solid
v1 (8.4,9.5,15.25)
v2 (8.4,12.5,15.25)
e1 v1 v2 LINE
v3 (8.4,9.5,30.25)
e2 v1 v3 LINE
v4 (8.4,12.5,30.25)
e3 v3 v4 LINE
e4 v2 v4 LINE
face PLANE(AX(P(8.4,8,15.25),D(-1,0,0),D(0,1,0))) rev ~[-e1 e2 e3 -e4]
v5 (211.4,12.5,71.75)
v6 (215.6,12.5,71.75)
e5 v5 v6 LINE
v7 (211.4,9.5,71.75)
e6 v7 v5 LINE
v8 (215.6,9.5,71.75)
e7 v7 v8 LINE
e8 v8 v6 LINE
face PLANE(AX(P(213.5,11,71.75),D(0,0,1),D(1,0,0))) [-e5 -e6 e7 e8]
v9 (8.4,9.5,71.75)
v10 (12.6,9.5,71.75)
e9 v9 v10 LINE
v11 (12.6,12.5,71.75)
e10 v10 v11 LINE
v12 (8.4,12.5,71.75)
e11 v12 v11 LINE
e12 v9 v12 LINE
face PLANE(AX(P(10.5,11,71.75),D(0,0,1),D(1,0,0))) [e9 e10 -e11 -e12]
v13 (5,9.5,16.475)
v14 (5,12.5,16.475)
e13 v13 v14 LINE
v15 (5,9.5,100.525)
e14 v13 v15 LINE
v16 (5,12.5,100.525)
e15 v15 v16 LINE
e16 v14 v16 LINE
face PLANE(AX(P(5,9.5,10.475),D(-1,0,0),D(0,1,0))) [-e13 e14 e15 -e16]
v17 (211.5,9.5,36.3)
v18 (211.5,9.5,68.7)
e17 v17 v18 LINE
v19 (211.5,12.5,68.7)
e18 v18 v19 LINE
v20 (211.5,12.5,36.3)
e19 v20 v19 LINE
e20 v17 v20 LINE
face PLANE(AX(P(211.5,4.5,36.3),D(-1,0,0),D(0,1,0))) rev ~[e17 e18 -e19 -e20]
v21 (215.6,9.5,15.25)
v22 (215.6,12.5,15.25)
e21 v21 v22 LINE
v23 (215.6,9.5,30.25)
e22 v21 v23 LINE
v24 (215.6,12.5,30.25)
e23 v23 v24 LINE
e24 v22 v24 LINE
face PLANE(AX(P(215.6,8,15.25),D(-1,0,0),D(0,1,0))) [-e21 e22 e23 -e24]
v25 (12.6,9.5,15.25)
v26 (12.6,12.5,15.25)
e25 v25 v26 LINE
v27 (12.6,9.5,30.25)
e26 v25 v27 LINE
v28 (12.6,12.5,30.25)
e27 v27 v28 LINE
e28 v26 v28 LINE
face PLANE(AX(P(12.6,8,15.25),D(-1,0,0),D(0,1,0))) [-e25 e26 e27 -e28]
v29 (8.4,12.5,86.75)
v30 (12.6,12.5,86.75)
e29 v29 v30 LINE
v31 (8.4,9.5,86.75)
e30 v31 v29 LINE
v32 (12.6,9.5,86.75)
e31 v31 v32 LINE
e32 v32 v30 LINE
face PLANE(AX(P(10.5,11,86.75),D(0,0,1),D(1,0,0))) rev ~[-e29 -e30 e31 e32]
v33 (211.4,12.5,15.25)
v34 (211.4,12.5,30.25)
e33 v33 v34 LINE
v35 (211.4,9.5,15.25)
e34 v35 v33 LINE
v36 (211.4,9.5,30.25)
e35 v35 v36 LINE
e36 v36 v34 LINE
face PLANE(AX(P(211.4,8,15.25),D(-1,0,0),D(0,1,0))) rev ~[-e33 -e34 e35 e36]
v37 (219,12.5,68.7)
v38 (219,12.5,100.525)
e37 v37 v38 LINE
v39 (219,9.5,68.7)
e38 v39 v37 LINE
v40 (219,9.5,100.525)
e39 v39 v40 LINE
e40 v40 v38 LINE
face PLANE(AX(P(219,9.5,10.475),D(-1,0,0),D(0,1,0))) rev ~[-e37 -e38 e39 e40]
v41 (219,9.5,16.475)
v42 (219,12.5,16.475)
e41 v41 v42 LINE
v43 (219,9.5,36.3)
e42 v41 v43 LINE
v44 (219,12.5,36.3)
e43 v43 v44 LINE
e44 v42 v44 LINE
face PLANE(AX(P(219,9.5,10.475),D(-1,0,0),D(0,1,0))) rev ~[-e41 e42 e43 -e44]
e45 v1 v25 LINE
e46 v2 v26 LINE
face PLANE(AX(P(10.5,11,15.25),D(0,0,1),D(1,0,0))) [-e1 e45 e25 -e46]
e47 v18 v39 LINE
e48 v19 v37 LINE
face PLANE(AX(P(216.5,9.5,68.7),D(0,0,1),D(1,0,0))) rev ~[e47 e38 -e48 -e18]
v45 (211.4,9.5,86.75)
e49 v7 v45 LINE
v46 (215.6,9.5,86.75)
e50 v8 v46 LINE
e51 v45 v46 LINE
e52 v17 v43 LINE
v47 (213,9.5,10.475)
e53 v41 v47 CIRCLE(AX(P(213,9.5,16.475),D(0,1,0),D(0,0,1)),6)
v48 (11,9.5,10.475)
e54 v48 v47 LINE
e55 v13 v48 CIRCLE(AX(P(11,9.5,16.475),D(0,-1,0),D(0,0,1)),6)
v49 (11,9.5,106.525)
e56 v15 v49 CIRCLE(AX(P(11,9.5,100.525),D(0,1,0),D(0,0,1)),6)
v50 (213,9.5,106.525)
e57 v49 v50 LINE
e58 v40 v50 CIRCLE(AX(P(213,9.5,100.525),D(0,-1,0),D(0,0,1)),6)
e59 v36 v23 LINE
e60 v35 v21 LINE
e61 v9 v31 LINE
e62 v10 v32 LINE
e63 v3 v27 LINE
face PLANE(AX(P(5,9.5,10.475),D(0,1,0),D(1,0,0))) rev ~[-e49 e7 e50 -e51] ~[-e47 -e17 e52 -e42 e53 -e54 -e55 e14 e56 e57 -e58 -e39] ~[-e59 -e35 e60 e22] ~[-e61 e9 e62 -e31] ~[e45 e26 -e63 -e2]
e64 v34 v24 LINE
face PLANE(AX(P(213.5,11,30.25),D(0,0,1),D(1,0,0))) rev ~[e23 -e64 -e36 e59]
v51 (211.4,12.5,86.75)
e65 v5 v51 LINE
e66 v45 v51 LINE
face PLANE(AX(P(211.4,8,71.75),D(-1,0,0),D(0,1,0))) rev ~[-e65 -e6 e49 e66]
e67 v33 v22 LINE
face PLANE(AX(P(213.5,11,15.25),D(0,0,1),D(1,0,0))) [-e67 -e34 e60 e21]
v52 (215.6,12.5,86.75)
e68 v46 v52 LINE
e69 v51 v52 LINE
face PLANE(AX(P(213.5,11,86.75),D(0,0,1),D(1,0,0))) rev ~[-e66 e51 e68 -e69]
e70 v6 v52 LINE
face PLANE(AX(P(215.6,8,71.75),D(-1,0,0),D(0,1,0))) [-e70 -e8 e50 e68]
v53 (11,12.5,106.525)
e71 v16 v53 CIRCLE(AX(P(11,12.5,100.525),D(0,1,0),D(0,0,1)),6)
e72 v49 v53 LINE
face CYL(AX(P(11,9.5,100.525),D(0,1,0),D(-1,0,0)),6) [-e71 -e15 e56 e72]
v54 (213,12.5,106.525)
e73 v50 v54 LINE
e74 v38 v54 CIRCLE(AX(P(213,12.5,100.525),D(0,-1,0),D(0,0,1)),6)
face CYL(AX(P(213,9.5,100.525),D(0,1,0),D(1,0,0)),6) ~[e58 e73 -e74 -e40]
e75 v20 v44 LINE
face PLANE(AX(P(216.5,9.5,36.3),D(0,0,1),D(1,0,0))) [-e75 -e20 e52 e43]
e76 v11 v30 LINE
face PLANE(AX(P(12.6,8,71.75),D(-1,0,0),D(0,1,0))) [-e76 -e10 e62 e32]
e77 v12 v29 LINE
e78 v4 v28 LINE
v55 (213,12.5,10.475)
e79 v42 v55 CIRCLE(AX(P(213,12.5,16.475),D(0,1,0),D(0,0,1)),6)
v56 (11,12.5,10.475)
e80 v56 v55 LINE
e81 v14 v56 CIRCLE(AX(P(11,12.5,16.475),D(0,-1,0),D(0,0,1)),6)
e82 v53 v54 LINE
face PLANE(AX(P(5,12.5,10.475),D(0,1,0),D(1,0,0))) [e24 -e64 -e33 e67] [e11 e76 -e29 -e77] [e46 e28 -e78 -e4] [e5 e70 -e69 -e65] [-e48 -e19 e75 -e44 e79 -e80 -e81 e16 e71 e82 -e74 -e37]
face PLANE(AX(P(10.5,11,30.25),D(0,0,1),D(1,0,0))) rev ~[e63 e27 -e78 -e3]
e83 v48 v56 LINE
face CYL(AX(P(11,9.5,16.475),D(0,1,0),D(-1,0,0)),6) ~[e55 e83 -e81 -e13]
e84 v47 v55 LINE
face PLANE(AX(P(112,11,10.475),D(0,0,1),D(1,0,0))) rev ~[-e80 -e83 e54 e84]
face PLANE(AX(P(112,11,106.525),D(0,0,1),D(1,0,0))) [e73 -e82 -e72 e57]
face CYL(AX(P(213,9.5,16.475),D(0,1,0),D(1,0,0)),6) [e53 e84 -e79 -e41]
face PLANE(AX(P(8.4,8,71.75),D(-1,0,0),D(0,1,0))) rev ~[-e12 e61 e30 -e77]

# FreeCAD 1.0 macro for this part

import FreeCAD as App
import Part
import Sketcher


def edges_at(feature, points):
    """Names of the edges that pass closest to the given points."""
    edges = feature.Shape.Edges
    near = lambda p: min(range(len(edges)), key=lambda i: edges[i].distToShape(Part.Vertex(*p))[0])
    return sorted({f"Edge{near(p) + 1}" for p in points})


def add_polygon(sketch, points):
    """Adds a closed chain of lines whose ends are joined by coincident constraints."""
    first, n = sketch.GeometryCount, len(points)
    for a, b in zip(points, points[1:] + points[:1]):
        sketch.addGeometry(Part.LineSegment(App.Vector(*a, 0), App.Vector(*b, 0)), False)
    for i in range(n):
        sketch.addConstraint(Sketcher.Constraint("Coincident", first + i, 2, first + (i + 1) % n, 1))

doc = App.newDocument("Part")
body = doc.addObject("PartDesign::Body", "Body")

sketch1 = body.newObject("Sketcher::SketchObject", "Sketch")
sketch1.AttachmentSupport = (doc.getObject("XY_Plane"), [""])
sketch1.MapMode = "FlatFace"
sketch1.AttachmentOffset = App.Placement(App.Vector(0, 0, 15.25), App.Rotation())
add_polygon(sketch1, [(211.4, 14), (211.4, 8), (215.6, 8), (215.6, 14)])
sketch1.addConstraint(Sketcher.Constraint("Vertical", 0))
sketch1.addConstraint(Sketcher.Constraint("Horizontal", 1))
sketch1.addConstraint(Sketcher.Constraint("Vertical", 2))
sketch1.addConstraint(Sketcher.Constraint("Horizontal", 3))
sketch1.addConstraint(Sketcher.Constraint("DistanceY", 0, 2, 0, 1, 6.0))
sketch1.addConstraint(Sketcher.Constraint("DistanceX", 1, 1, 1, 2, 4.2))
sketch1.addConstraint(Sketcher.Constraint("DistanceY", -1, 1, 0, 2, 8.0))
sketch1.addConstraint(Sketcher.Constraint("DistanceX", -1, 1, 0, 2, 211.4))
pad1 = body.newObject("PartDesign::Pad", "Pad")
pad1.Profile = sketch1
pad1.Length = 15
body2 = doc.addObject("PartDesign::Body", "Body001")

sketch2 = body2.newObject("Sketcher::SketchObject", "Sketch001")
sketch2.AttachmentSupport = (doc.getObject("XY_Plane001"), [""])
sketch2.MapMode = "FlatFace"
sketch2.AttachmentOffset = App.Placement(App.Vector(0, 0, 15.25), App.Rotation())
add_polygon(sketch2, [(8.4, 14), (8.4, 8), (12.6, 8), (12.6, 14)])
sketch2.addConstraint(Sketcher.Constraint("Vertical", 0))
sketch2.addConstraint(Sketcher.Constraint("Horizontal", 1))
sketch2.addConstraint(Sketcher.Constraint("Vertical", 2))
sketch2.addConstraint(Sketcher.Constraint("Horizontal", 3))
sketch2.addConstraint(Sketcher.Constraint("DistanceY", 0, 2, 0, 1, 6.0))
sketch2.addConstraint(Sketcher.Constraint("DistanceX", 1, 1, 1, 2, 4.2))
sketch2.addConstraint(Sketcher.Constraint("DistanceY", -1, 1, 0, 2, 8.0))
sketch2.addConstraint(Sketcher.Constraint("DistanceX", -1, 1, 0, 2, 8.4))
pad2 = body2.newObject("PartDesign::Pad", "Pad001")
pad2.Profile = sketch2
pad2.Length = 15
body3 = doc.addObject("PartDesign::Body", "Body002")

sketch3 = body3.newObject("Sketcher::SketchObject", "Sketch002")
sketch3.AttachmentSupport = (doc.getObject("XY_Plane002"), [""])
sketch3.MapMode = "FlatFace"
sketch3.AttachmentOffset = App.Placement(App.Vector(0, 0, 71.75), App.Rotation())
add_polygon(sketch3, [(8.4, 14), (8.4, 8), (12.6, 8), (12.6, 14)])
sketch3.addConstraint(Sketcher.Constraint("Vertical", 0))
sketch3.addConstraint(Sketcher.Constraint("Horizontal", 1))
sketch3.addConstraint(Sketcher.Constraint("Vertical", 2))
sketch3.addConstraint(Sketcher.Constraint("Horizontal", 3))
sketch3.addConstraint(Sketcher.Constraint("DistanceY", 0, 2, 0, 1, 6.0))
sketch3.addConstraint(Sketcher.Constraint("DistanceX", 1, 1, 1, 2, 4.2))
sketch3.addConstraint(Sketcher.Constraint("DistanceY", -1, 1, 0, 2, 8.0))
sketch3.addConstraint(Sketcher.Constraint("DistanceX", -1, 1, 0, 2, 8.4))
pad3 = body3.newObject("PartDesign::Pad", "Pad002")
pad3.Profile = sketch3
pad3.Length = 15
body4 = doc.addObject("PartDesign::Body", "Body003")

sketch4 = body4.newObject("Sketcher::SketchObject", "Sketch003")
sketch4.AttachmentSupport = (doc.getObject("XY_Plane003"), [""])
sketch4.MapMode = "FlatFace"
sketch4.AttachmentOffset = App.Placement(App.Vector(0, 0, 71.75), App.Rotation())
add_polygon(sketch4, [(211.4, 14), (211.4, 8), (215.6, 8), (215.6, 14)])
sketch4.addConstraint(Sketcher.Constraint("Vertical", 0))
sketch4.addConstraint(Sketcher.Constraint("Horizontal", 1))
sketch4.addConstraint(Sketcher.Constraint("Vertical", 2))
sketch4.addConstraint(Sketcher.Constraint("Horizontal", 3))
sketch4.addConstraint(Sketcher.Constraint("DistanceY", 0, 2, 0, 1, 6.0))
sketch4.addConstraint(Sketcher.Constraint("DistanceX", 1, 1, 1, 2, 4.2))
sketch4.addConstraint(Sketcher.Constraint("DistanceY", -1, 1, 0, 2, 8.0))
sketch4.addConstraint(Sketcher.Constraint("DistanceX", -1, 1, 0, 2, 211.4))
pad4 = body4.newObject("PartDesign::Pad", "Pad003")
pad4.Profile = sketch4
pad4.Length = 15
body5 = doc.addObject("PartDesign::Body", "Body004")

sketch5 = body5.newObject("Sketcher::SketchObject", "Sketch004")
sketch5.AttachmentSupport = (doc.getObject("XY_Plane004"), [""])
sketch5.MapMode = "FlatFace"
sketch5.AttachmentOffset = App.Placement(App.Vector(0, 0, 36.3), App.Rotation())
add_polygon(sketch5, [(211.5, 14.5), (211.5, 4.5), (221.5, 4.5), (221.5, 14.5)])
sketch5.addConstraint(Sketcher.Constraint("Vertical", 0))
sketch5.addConstraint(Sketcher.Constraint("Horizontal", 1))
sketch5.addConstraint(Sketcher.Constraint("Vertical", 2))
sketch5.addConstraint(Sketcher.Constraint("Horizontal", 3))
sketch5.addConstraint(Sketcher.Constraint("Equal", 3, 0))
sketch5.addConstraint(Sketcher.Constraint("DistanceX", 1, 1, 1, 2, 10.0))
sketch5.addConstraint(Sketcher.Constraint("DistanceX", -1, 1, 0, 2, 211.5))
sketch5.addConstraint(Sketcher.Constraint("DistanceY", -1, 1, 0, 2, 4.5))
pad5 = body5.newObject("PartDesign::Pad", "Pad004")
pad5.Profile = sketch5
pad5.Length = 32.4
body6 = doc.addObject("PartDesign::Body", "Body005")

sketch6 = body6.newObject("Sketcher::SketchObject", "Sketch005")
sketch6.AttachmentSupport = (doc.getObject("XY_Plane005"), [""])
sketch6.MapMode = "FlatFace"
sketch6.AttachmentOffset = App.Placement(App.Vector(0, 0, 10.475), App.Rotation())
add_polygon(sketch6, [(5, 12.5), (5, 9.5), (219, 9.5), (219, 12.5)])
sketch6.addConstraint(Sketcher.Constraint("Vertical", 0))
sketch6.addConstraint(Sketcher.Constraint("Horizontal", 1))
sketch6.addConstraint(Sketcher.Constraint("Vertical", 2))
sketch6.addConstraint(Sketcher.Constraint("Horizontal", 3))
sketch6.addConstraint(Sketcher.Constraint("DistanceX", 1, 1, 1, 2, 214.0))
sketch6.addConstraint(Sketcher.Constraint("DistanceY", 0, 2, 0, 1, 3.0))
sketch6.addConstraint(Sketcher.Constraint("DistanceX", -1, 1, 0, 2, 5.0))
sketch6.addConstraint(Sketcher.Constraint("DistanceY", -1, 1, 0, 2, 9.5))
pad6 = body6.newObject("PartDesign::Pad", "Pad005")
pad6.Profile = sketch6
pad6.Length = 96.05
doc.recompute()

fillet = body6.newObject("PartDesign::Fillet", "Fillet")
fillet.Base = (pad6, edges_at(pad6, [
    (5, 11, 106.525),
    (5, 11, 10.475),
    (219, 11, 106.525),
    (219, 11, 10.475),
]))
fillet.Radius = 6
doc.recompute()

boolean = body6.newObject("PartDesign::Boolean", "Boolean")
boolean.Type = "Cut"
boolean.addObjects([body5])
doc.recompute()

boolean2 = body6.newObject("PartDesign::Boolean", "Boolean001")
boolean2.Type = "Cut"
boolean2.addObjects([body4])
doc.recompute()

boolean3 = body6.newObject("PartDesign::Boolean", "Boolean002")
boolean3.Type = "Cut"
boolean3.addObjects([body3])
doc.recompute()

boolean4 = body6.newObject("PartDesign::Boolean", "Boolean003")
boolean4.Type = "Cut"
boolean4.addObjects([body2])
doc.recompute()

boolean5 = body6.newObject("PartDesign::Boolean", "Boolean004")
boolean5.Type = "Cut"
boolean5.addObjects([body])

doc.recompute()
